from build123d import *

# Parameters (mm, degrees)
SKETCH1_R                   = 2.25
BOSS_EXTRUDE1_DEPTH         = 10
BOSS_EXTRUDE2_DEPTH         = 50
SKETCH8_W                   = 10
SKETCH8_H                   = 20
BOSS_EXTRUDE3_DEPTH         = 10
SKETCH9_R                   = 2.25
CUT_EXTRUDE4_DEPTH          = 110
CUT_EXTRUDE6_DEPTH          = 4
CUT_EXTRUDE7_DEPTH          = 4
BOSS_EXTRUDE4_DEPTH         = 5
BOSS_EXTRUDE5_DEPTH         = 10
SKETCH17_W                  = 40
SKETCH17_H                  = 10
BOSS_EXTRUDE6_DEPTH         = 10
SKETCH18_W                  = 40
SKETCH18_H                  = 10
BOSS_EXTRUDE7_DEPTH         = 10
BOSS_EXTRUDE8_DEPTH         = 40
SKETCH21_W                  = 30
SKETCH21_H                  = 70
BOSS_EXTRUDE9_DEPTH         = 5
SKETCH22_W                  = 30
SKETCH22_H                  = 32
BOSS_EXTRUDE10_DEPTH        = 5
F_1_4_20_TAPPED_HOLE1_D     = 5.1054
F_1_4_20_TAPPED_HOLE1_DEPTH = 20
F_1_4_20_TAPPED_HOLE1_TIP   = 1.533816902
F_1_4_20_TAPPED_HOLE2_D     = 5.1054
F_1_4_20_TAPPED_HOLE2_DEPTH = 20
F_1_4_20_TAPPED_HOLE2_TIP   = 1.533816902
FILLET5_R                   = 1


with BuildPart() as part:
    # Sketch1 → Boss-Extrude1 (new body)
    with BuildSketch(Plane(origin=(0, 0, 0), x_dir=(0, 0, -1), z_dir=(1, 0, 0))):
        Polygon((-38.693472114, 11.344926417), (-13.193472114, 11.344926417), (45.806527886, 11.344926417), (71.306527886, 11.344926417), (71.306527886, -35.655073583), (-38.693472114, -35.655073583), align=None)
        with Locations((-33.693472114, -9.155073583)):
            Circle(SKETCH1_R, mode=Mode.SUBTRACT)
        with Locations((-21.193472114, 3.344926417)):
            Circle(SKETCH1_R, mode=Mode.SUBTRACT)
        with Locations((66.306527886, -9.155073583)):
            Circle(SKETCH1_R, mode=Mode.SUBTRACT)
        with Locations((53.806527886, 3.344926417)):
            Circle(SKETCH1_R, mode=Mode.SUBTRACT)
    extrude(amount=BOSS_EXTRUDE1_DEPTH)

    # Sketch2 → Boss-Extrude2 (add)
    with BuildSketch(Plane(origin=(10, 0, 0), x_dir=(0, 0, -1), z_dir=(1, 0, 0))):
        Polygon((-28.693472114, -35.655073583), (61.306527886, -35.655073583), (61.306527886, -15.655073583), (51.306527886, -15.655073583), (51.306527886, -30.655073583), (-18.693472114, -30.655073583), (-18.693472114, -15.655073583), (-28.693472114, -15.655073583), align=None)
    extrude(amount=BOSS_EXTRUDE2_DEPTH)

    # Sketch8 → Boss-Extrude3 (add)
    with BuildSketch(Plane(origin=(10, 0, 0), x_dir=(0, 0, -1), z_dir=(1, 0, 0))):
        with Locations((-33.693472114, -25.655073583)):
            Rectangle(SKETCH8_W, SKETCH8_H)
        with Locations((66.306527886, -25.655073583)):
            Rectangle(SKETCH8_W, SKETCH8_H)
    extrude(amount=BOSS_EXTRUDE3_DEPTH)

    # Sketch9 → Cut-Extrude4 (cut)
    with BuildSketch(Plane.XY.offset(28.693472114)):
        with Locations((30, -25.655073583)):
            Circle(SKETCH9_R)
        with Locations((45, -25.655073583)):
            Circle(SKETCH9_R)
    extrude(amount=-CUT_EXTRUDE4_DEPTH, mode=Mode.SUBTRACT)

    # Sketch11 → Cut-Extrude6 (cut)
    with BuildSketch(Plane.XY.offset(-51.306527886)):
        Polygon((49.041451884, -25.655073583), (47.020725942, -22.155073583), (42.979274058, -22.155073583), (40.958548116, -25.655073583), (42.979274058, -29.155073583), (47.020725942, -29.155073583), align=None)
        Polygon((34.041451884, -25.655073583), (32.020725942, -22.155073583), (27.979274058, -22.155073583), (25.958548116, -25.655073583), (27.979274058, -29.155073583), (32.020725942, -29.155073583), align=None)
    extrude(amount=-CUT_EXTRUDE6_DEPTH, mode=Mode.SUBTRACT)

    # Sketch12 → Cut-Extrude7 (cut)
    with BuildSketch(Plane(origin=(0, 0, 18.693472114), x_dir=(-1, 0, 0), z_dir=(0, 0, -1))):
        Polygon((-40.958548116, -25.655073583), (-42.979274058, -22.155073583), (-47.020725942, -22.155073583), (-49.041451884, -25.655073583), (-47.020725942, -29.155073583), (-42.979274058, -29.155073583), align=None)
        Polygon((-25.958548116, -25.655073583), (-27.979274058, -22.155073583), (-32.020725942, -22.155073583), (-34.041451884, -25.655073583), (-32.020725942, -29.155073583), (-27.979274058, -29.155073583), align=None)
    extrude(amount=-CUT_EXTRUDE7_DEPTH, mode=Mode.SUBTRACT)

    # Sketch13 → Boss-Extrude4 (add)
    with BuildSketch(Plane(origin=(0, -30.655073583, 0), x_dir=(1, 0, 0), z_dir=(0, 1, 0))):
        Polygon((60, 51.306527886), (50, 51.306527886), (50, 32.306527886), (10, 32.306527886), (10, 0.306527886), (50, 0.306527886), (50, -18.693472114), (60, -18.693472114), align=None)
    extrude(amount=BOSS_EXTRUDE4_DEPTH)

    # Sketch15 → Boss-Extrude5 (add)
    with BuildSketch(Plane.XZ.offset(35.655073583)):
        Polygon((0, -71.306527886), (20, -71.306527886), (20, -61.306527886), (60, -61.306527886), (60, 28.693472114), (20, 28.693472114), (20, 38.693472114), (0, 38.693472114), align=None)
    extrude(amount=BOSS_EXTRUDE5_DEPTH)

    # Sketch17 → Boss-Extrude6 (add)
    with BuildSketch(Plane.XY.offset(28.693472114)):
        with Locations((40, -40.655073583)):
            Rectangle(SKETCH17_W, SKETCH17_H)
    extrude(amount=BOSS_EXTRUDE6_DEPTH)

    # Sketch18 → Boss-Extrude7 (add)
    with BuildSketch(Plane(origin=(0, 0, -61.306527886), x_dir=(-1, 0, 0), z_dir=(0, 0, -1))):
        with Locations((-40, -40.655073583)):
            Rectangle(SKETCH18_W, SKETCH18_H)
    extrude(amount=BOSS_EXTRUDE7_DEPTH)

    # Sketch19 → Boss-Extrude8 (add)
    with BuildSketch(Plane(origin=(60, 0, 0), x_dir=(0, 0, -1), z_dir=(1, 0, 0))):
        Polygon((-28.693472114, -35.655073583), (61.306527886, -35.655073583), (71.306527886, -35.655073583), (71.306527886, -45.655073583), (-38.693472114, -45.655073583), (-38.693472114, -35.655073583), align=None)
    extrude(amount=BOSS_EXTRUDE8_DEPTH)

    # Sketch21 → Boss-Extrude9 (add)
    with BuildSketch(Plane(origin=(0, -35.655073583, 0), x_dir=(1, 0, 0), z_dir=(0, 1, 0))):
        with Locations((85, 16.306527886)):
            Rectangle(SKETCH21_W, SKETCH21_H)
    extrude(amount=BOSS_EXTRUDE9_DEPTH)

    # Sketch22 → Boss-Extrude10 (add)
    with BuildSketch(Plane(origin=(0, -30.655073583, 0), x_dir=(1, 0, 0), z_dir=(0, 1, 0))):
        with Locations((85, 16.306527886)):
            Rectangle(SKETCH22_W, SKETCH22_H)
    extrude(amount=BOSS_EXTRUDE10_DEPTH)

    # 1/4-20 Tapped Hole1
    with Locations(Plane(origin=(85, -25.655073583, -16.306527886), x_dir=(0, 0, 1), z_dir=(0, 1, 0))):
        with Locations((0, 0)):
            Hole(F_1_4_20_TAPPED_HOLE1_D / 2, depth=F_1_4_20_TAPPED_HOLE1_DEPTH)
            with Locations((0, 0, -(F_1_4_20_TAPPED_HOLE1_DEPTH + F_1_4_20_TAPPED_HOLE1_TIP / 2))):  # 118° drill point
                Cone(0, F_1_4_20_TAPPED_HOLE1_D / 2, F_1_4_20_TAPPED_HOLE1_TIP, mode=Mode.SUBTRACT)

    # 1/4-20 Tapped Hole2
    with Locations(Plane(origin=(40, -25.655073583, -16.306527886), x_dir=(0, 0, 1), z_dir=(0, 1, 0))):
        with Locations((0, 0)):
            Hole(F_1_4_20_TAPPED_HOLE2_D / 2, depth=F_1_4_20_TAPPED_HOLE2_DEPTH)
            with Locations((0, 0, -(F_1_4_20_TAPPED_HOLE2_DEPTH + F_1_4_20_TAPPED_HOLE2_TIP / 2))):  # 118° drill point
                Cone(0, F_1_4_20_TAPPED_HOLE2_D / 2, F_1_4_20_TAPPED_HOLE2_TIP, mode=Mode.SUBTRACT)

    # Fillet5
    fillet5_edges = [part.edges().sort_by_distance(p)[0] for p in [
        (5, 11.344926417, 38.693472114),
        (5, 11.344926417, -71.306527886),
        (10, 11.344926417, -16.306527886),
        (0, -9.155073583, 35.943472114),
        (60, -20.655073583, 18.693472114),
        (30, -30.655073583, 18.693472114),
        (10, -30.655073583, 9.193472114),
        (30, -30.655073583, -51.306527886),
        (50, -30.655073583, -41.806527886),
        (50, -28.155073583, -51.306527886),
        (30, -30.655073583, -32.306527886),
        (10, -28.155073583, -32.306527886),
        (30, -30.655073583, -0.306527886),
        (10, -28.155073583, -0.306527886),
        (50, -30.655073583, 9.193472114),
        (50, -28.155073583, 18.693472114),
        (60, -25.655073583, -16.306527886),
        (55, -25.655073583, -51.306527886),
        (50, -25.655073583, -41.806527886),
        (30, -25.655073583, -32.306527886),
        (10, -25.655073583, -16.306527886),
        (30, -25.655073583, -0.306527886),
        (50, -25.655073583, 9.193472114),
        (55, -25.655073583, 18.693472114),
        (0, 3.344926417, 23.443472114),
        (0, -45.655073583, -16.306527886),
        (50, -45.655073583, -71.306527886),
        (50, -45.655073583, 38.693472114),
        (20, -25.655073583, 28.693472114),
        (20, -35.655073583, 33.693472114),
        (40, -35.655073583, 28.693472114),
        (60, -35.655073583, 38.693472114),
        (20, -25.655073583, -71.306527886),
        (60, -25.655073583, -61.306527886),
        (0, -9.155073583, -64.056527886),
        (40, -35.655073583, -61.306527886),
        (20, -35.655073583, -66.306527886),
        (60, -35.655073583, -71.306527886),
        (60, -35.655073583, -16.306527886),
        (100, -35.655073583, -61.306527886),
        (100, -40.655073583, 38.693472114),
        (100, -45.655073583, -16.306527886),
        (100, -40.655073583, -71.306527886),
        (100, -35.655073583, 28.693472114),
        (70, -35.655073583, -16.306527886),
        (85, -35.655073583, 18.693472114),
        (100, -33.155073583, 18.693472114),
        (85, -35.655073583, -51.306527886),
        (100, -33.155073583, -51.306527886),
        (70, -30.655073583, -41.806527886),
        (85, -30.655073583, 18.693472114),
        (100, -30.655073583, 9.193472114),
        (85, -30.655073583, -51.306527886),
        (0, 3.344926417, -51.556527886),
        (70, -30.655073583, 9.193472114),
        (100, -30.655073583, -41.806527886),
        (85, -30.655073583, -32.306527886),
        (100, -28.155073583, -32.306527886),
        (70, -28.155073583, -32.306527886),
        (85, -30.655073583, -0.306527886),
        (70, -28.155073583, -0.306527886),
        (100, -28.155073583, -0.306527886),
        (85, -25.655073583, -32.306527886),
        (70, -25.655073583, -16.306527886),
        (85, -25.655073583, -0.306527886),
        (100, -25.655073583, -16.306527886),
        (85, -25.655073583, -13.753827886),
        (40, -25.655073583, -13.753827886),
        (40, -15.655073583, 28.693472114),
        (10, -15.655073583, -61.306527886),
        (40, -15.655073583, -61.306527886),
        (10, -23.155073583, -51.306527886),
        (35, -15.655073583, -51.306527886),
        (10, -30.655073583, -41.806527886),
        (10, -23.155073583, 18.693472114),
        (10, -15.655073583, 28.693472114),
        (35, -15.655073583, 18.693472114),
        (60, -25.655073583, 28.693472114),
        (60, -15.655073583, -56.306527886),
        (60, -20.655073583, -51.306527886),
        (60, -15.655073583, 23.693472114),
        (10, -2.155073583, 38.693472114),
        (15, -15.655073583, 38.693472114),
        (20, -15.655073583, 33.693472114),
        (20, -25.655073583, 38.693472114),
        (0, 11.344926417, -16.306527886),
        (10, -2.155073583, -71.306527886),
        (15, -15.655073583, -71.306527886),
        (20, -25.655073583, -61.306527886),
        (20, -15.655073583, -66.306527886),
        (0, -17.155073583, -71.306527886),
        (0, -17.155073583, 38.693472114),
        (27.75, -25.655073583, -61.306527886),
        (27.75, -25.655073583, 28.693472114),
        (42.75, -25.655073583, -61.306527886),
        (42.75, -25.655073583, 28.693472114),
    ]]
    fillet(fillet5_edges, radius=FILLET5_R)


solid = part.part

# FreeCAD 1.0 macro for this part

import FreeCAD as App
import Part
import Sketcher
from FreeCAD import Vector
Q = App.Units.Quantity


def edges_at(feature, points):
    """Names of the edges that pass closest to the given points."""
    edges = feature.Shape.Edges
    near = lambda p: min(range(len(edges)), key=lambda i: edges[i].distToShape(Part.Vertex(*p))[0])
    return sorted({f"Edge{near(p) + 1}" for p in points})


def add_polygon(sketch, points):
    """Adds a closed chain of lines whose ends are joined by coincident constraints."""
    first, n = sketch.GeometryCount, len(points)
    for a, b in zip(points, points[1:] + points[:1]):
        sketch.addGeometry(Part.LineSegment(App.Vector(*a, 0), App.Vector(*b, 0)), False)
    for i in range(n):
        sketch.addConstraint(Sketcher.Constraint("Coincident", first + i, 2, first + (i + 1) % n, 1))

doc = App.newDocument("Part")
body = doc.addObject("PartDesign::Body", "Body")

# Sketch on YZ plane
sketch1 = doc.addObject("Sketcher::SketchObject", "Sketch")
body.addObject(sketch1)
sketch1.AttachmentSupport = (doc.YZ_Plane, [""])
sketch1.MapMode = "FlatFace"
add_polygon(sketch1, [(11.3, -71.3), (11.3, 38.7), (-35.7, 38.7), (-35.7, -71.3)])  # lines 0-3
sketch1.addGeometry(Part.Circle(Vector(-9.2, -66.3, 0), Vector(0, 0, 1), 2.2), False)  # 4
sketch1.addGeometry(Part.Circle(Vector(-9.2, 33.7, 0), Vector(0, 0, 1), 2.2), False)  # 5
sketch1.addGeometry(Part.Circle(Vector(3.3, -53.8, 0), Vector(0, 0, 1), 2.2), False)  # 6
sketch1.addGeometry(Part.Circle(Vector(3.3, 21.2, 0), Vector(0, 0, 1), 2.2), False)  # 7
sketch1.addConstraint(Sketcher.Constraint("Vertical", 0))
sketch1.addConstraint(Sketcher.Constraint("Horizontal", 1))
sketch1.addConstraint(Sketcher.Constraint("Vertical", 2))
sketch1.addConstraint(Sketcher.Constraint("Horizontal", 3))
sketch1.addConstraint(Sketcher.Constraint("Equal", 4, 5))
sketch1.addConstraint(Sketcher.Constraint("Equal", 5, 6))
sketch1.addConstraint(Sketcher.Constraint("Equal", 6, 7))
sketch1.addConstraint(Sketcher.Constraint("Vertical", 4, 3, 5, 3))
sketch1.addConstraint(Sketcher.Constraint("Vertical", 6, 3, 7, 3))
sketch1.addConstraint(Sketcher.Constraint("Diameter", 4, Q("4.5 mm")))
sketch1.addConstraint(Sketcher.Constraint("DistanceX", 1, 2, 1, 1, Q("47 mm")))
sketch1.addConstraint(Sketcher.Constraint("DistanceY", 0, 1, 0, 2, Q("110 mm")))
sketch1.addConstraint(Sketcher.Constraint("DistanceY", 4, 3, 5, 3, Q("100 mm")))
sketch1.addConstraint(Sketcher.Constraint("DistanceY", 6, 3, 7, 3, Q("75 mm")))
sketch1.addConstraint(Sketcher.Constraint("DistanceX", 7, 3, 0, 2, Q("8 mm")))
sketch1.addConstraint(Sketcher.Constraint("DistanceY", 5, 3, 0, 2, Q("5 mm")))
sketch1.addConstraint(Sketcher.Constraint("DistanceX", 4, 3, 6, 3, Q("12.5 mm")))
sketch1.addConstraint(Sketcher.Constraint("DistanceY", 4, 3, 6, 3, Q("12.5 mm")))
sketch1.addConstraint(Sketcher.Constraint("DistanceX", 4, 3, -1, 1, Q("9.155074 mm")))
sketch1.addConstraint(Sketcher.Constraint("DistanceY", 4, 3, -1, 1, Q("66.306528 mm")))
pad1 = doc.addObject("PartDesign::Pad", "Pad")
body.addObject(pad1)
pad1.Profile = sketch1
pad1.Length = 10

# Sketch on YZ plane
sketch2 = doc.addObject("Sketcher::SketchObject", "Sketch001")
body.addObject(sketch2)
sketch2.AttachmentSupport = (doc.YZ_Plane, [""])
sketch2.MapMode = "FlatFace"
sketch2.AttachmentOffset = App.Placement(Vector(0, 0, 10), App.Rotation())
add_polygon(sketch2, [(-36, 29), (-36, -61), (-16, -61), (-16, -51), (-31, -51), (-31, 19), (-16, 19), (-16, 29)])  # lines 0-7
sketch2.addConstraint(Sketcher.Constraint("Vertical", 0))
sketch2.addConstraint(Sketcher.Constraint("Horizontal", 1))
sketch2.addConstraint(Sketcher.Constraint("Vertical", 2))
sketch2.addConstraint(Sketcher.Constraint("Horizontal", 3))
sketch2.addConstraint(Sketcher.Constraint("Vertical", 4))
sketch2.addConstraint(Sketcher.Constraint("Horizontal", 5))
sketch2.addConstraint(Sketcher.Constraint("Vertical", 6))
sketch2.addConstraint(Sketcher.Constraint("Horizontal", 7))
sketch2.addConstraint(Sketcher.Constraint("Vertical", 2, 2, 5, 2))
sketch2.addConstraint(Sketcher.Constraint("Equal", 2, 6))
sketch2.addConstraint(Sketcher.Constraint("DistanceX", 1, 1, 1, 2, Q("20 mm")))
sketch2.addConstraint(Sketcher.Constraint("DistanceX", 3, 2, 3, 1, Q("15 mm")))
sketch2.addConstraint(Sketcher.Constraint("DistanceY", 0, 2, 0, 1, Q("90 mm")))
sketch2.addConstraint(Sketcher.Constraint("DistanceY", 2, 1, 2, 2, Q("10 mm")))
sketch2.addConstraint(Sketcher.Constraint("DistanceX", 0, 2, -1, 1, Q("35.655074 mm")))
sketch2.addConstraint(Sketcher.Constraint("DistanceY", 0, 2, -1, 1, Q("61.306528 mm")))
pad2 = doc.addObject("PartDesign::Pad", "Pad001")
body.addObject(pad2)
pad2.Profile = sketch2
pad2.Length = 50

# Sketch on YZ plane
sketch3 = doc.addObject("Sketcher::SketchObject", "Sketch002")
body.addObject(sketch3)
sketch3.AttachmentSupport = (doc.YZ_Plane, [""])
sketch3.MapMode = "FlatFace"
sketch3.AttachmentOffset = App.Placement(Vector(0, 0, 10), App.Rotation())
add_polygon(sketch3, [(-16, 39), (-36, 39), (-36, 29), (-16, 29)])  # lines 0-3
add_polygon(sketch3, [(-16, -61), (-36, -61), (-36, -71), (-16, -71)])  # lines 4-7
sketch3.addConstraint(Sketcher.Constraint("Horizontal", 0))
sketch3.addConstraint(Sketcher.Constraint("Vertical", 1))
sketch3.addConstraint(Sketcher.Constraint("Horizontal", 2))
sketch3.addConstraint(Sketcher.Constraint("Vertical", 3))
sketch3.addConstraint(Sketcher.Constraint("Horizontal", 4))
sketch3.addConstraint(Sketcher.Constraint("Vertical", 5))
sketch3.addConstraint(Sketcher.Constraint("Horizontal", 6))
sketch3.addConstraint(Sketcher.Constraint("Vertical", 7))
sketch3.addConstraint(Sketcher.Constraint("Vertical", 1, 2, 4, 2))
sketch3.addConstraint(Sketcher.Constraint("Vertical", 3, 2, 6, 2))
sketch3.addConstraint(Sketcher.Constraint("Equal", 3, 5))
sketch3.addConstraint(Sketcher.Constraint("DistanceX", 0, 2, 0, 1, Q("20 mm")))
sketch3.addConstraint(Sketcher.Constraint("DistanceY", 1, 2, 1, 1, Q("10 mm")))
sketch3.addConstraint(Sketcher.Constraint("DistanceY", 4, 2, 1, 2, Q("90 mm")))
sketch3.addConstraint(Sketcher.Constraint("DistanceX", 0, 2, -1, 1, Q("35.655074 mm")))
sketch3.addConstraint(Sketcher.Constraint("DistanceY", -1, 1, 0, 2, Q("38.693472 mm")))
pad3 = doc.addObject("PartDesign::Pad", "Pad002")
body.addObject(pad3)
pad3.Profile = sketch3
pad3.Length = 10

# Sketch on XY plane
sketch4 = doc.addObject("Sketcher::SketchObject", "Sketch003")
body.addObject(sketch4)
sketch4.AttachmentSupport = (doc.XY_Plane, [""])
sketch4.MapMode = "FlatFace"
sketch4.AttachmentOffset = App.Placement(Vector(0, 0, 28.693472), App.Rotation())
sketch4.addGeometry(Part.Circle(Vector(30, -25.7, 0), Vector(0, 0, 1), 2.2), False)
sketch4.addGeometry(Part.Circle(Vector(45, -25.7, 0), Vector(0, 0, 1), 2.2), False)
sketch4.addConstraint(Sketcher.Constraint("Equal", 0, 1))
sketch4.addConstraint(Sketcher.Constraint("Horizontal", 0, 3, 1, 3))
sketch4.addConstraint(Sketcher.Constraint("Diameter", 0, Q("4.5 mm")))
sketch4.addConstraint(Sketcher.Constraint("DistanceX", -1, 1, 0, 3, Q("30 mm")))
sketch4.addConstraint(Sketcher.Constraint("DistanceX", -1, 1, 1, 3, Q("45 mm")))
sketch4.addConstraint(Sketcher.Constraint("DistanceY", 0, 3, -1, 1, Q("25.655074 mm")))
pocket1 = doc.addObject("PartDesign::Pocket", "Pocket")
body.addObject(pocket1)
pocket1.Profile = sketch4
pocket1.Length = 110

# Sketch on XY plane
sketch5 = doc.addObject("Sketcher::SketchObject", "Sketch004")
body.addObject(sketch5)
sketch5.AttachmentSupport = (doc.XY_Plane, [""])
sketch5.MapMode = "FlatFace"
sketch5.AttachmentOffset = App.Placement(Vector(0, 0, -51.306528), App.Rotation())
add_polygon(sketch5, [(49, -25.7), (47, -22.2), (43, -22.2), (41, -25.7), (43, -29.2), (47, -29.2)])  # lines 0-5
add_polygon(sketch5, [(34, -25.7), (32, -22.2), (28, -22.2), (26, -25.7), (28, -29.2), (32, -29.2)])  # lines 6-11
sketch5.addConstraint(Sketcher.Constraint("Horizontal", 1))
sketch5.addConstraint(Sketcher.Constraint("Horizontal", 4))
sketch5.addConstraint(Sketcher.Constraint("Horizontal", 7))
sketch5.addConstraint(Sketcher.Constraint("Horizontal", 10))
sketch5.addConstraint(Sketcher.Constraint("Parallel", 0, 3))
sketch5.addConstraint(Sketcher.Constraint("Parallel", 2, 5))
sketch5.addConstraint(Sketcher.Constraint("Parallel", 3, 6))
sketch5.addConstraint(Sketcher.Constraint("Parallel", 5, 8))
sketch5.addConstraint(Sketcher.Constraint("Parallel", 6, 9))
sketch5.addConstraint(Sketcher.Constraint("Parallel", 8, 11))
sketch5.addConstraint(Sketcher.Constraint("Horizontal", 2, 2, 5, 2))
sketch5.addConstraint(Sketcher.Constraint("Horizontal", 1, 2, 6, 2))
sketch5.addConstraint(Sketcher.Constraint("Horizontal", 5, 2, 8, 2))
sketch5.addConstraint(Sketcher.Constraint("Horizontal", 4, 2, 9, 2))
sketch5.addConstraint(Sketcher.Constraint("Horizontal", 8, 2, 11, 2))
sketch5.addConstraint(Sketcher.Constraint("Vertical", 1, 2, 3, 2))
sketch5.addConstraint(Sketcher.Constraint("Vertical", 0, 2, 4, 2))
sketch5.addConstraint(Sketcher.Constraint("Equal", 4, 7))
sketch5.addConstraint(Sketcher.Constraint("Angle", 0, Q("120 deg")))
sketch5.addConstraint(Sketcher.Constraint("DistanceY", 3, 2, 1, 2, Q("7 mm")))
sketch5.addConstraint(Sketcher.Constraint("DistanceX", 6, 2, 0, 2, Q("15 mm")))
sketch5.addConstraint(Sketcher.Constraint("DistanceX", 1, 2, 1, 1, Q("4.041452 mm")))
sketch5.addConstraint(Sketcher.Constraint("DistanceX", -1, 1, 2, 2, Q("40.958548 mm")))
sketch5.addConstraint(Sketcher.Constraint("DistanceY", 0, 2, -1, 1, Q("22.155074 mm")))
pocket2 = doc.addObject("PartDesign::Pocket", "Pocket001")
body.addObject(pocket2)
pocket2.Profile = sketch5
pocket2.Length = 4

# Sketch on XY plane
sketch6 = doc.addObject("Sketcher::SketchObject", "Sketch005")
body.addObject(sketch6)
sketch6.AttachmentSupport = (doc.XY_Plane, [""])
sketch6.MapMode = "FlatFace"
sketch6.AttachmentOffset = App.Placement(Vector(0, 0, 18.693472), App.Rotation())
add_polygon(sketch6, [(41, -25.7), (43, -22.2), (47, -22.2), (49, -25.7), (47, -29.2), (43, -29.2)])  # lines 0-5
add_polygon(sketch6, [(26, -25.7), (28, -22.2), (32, -22.2), (34, -25.7), (32, -29.2), (28, -29.2)])  # lines 6-11
sketch6.addConstraint(Sketcher.Constraint("Horizontal", 1))
sketch6.addConstraint(Sketcher.Constraint("Horizontal", 4))
sketch6.addConstraint(Sketcher.Constraint("Horizontal", 7))
sketch6.addConstraint(Sketcher.Constraint("Horizontal", 10))
sketch6.addConstraint(Sketcher.Constraint("Parallel", 0, 3))
sketch6.addConstraint(Sketcher.Constraint("Parallel", 2, 5))
sketch6.addConstraint(Sketcher.Constraint("Parallel", 3, 6))
sketch6.addConstraint(Sketcher.Constraint("Parallel", 5, 8))
sketch6.addConstraint(Sketcher.Constraint("Parallel", 6, 9))
sketch6.addConstraint(Sketcher.Constraint("Parallel", 8, 11))
sketch6.addConstraint(Sketcher.Constraint("Horizontal", 2, 2, 5, 2))
sketch6.addConstraint(Sketcher.Constraint("Horizontal", 1, 2, 6, 2))
sketch6.addConstraint(Sketcher.Constraint("Horizontal", 5, 2, 8, 2))
sketch6.addConstraint(Sketcher.Constraint("Horizontal", 4, 2, 9, 2))
sketch6.addConstraint(Sketcher.Constraint("Horizontal", 8, 2, 11, 2))
sketch6.addConstraint(Sketcher.Constraint("Vertical", 1, 2, 3, 2))
sketch6.addConstraint(Sketcher.Constraint("Vertical", 0, 2, 4, 2))
sketch6.addConstraint(Sketcher.Constraint("Equal", 4, 7))
sketch6.addConstraint(Sketcher.Constraint("Angle", 0, Q("60 deg")))
sketch6.addConstraint(Sketcher.Constraint("DistanceY", 3, 2, 1, 2, Q("7 mm")))
sketch6.addConstraint(Sketcher.Constraint("DistanceX", 6, 2, 0, 2, Q("15 mm")))
sketch6.addConstraint(Sketcher.Constraint("DistanceX", 1, 1, 1, 2, Q("4.041452 mm")))
sketch6.addConstraint(Sketcher.Constraint("DistanceX", -1, 1, 2, 2, Q("49.041452 mm")))
sketch6.addConstraint(Sketcher.Constraint("DistanceY", 0, 2, -1, 1, Q("22.155074 mm")))
pocket3 = doc.addObject("PartDesign::Pocket", "Pocket002")
body.addObject(pocket3)
pocket3.Profile = sketch6
pocket3.Length = 4
pocket3.Reversed = True

# Sketch on XZ plane
sketch7 = doc.addObject("Sketcher::SketchObject", "Sketch006")
body.addObject(sketch7)
sketch7.AttachmentSupport = (doc.XZ_Plane, [""])
sketch7.MapMode = "FlatFace"
sketch7.AttachmentOffset = App.Placement(Vector(0, 0, 30.655074), App.Rotation())
add_polygon(sketch7, [(60, -51), (50, -51), (50, -32), (10, -32), (10, 0), (50, 0), (50, 19), (60, 19)])  # lines 0-7
sketch7.addConstraint(Sketcher.Constraint("Horizontal", 0))
sketch7.addConstraint(Sketcher.Constraint("Vertical", 1))
sketch7.addConstraint(Sketcher.Constraint("Horizontal", 2))
sketch7.addConstraint(Sketcher.Constraint("Vertical", 3))
sketch7.addConstraint(Sketcher.Constraint("Horizontal", 4))
sketch7.addConstraint(Sketcher.Constraint("Vertical", 5))
sketch7.addConstraint(Sketcher.Constraint("Horizontal", 6))
sketch7.addConstraint(Sketcher.Constraint("Vertical", 7))
sketch7.addConstraint(Sketcher.Constraint("Vertical", 1, 2, 4, 2))
sketch7.addConstraint(Sketcher.Constraint("Equal", 1, 5))
sketch7.addConstraint(Sketcher.Constraint("DistanceX", 0, 2, 0, 1, Q("10 mm")))
sketch7.addConstraint(Sketcher.Constraint("DistanceX", 2, 2, 2, 1, Q("40 mm")))
sketch7.addConstraint(Sketcher.Constraint("DistanceY", 1, 1, 1, 2, Q("19 mm")))
sketch7.addConstraint(Sketcher.Constraint("DistanceY", 3, 1, 3, 2, Q("32 mm")))
sketch7.addConstraint(Sketcher.Constraint("DistanceX", -1, 1, 0, 2, Q("50 mm")))
sketch7.addConstraint(Sketcher.Constraint("DistanceY", 0, 2, -1, 1, Q("51.306528 mm")))
pad4 = doc.addObject("PartDesign::Pad", "Pad003")
body.addObject(pad4)
pad4.Profile = sketch7
pad4.Length = 5
pad4.Reversed = True

# Sketch on XZ plane
sketch8 = doc.addObject("Sketcher::SketchObject", "Sketch007")
body.addObject(sketch8)
sketch8.AttachmentSupport = (doc.XZ_Plane, [""])
sketch8.MapMode = "FlatFace"
sketch8.AttachmentOffset = App.Placement(Vector(0, 0, 35.655074), App.Rotation())
add_polygon(sketch8, [(0, -71), (20, -71), (20, -61), (60, -61), (60, 29), (20, 29), (20, 39), (0, 39)])  # lines 0-7
sketch8.addConstraint(Sketcher.Constraint("Horizontal", 0))
sketch8.addConstraint(Sketcher.Constraint("Vertical", 1))
sketch8.addConstraint(Sketcher.Constraint("Horizontal", 2))
sketch8.addConstraint(Sketcher.Constraint("Vertical", 3))
sketch8.addConstraint(Sketcher.Constraint("Horizontal", 4))
sketch8.addConstraint(Sketcher.Constraint("Vertical", 5))
sketch8.addConstraint(Sketcher.Constraint("Horizontal", 6))
sketch8.addConstraint(Sketcher.Constraint("Vertical", 7))
sketch8.addConstraint(Sketcher.Constraint("PointOnObject", 6, 2, -2))
sketch8.addConstraint(Sketcher.Constraint("Vertical", 1, 2, 4, 2))
sketch8.addConstraint(Sketcher.Constraint("Equal", 1, 5))
sketch8.addConstraint(Sketcher.Constraint("DistanceX", 0, 1, 0, 2, Q("20 mm")))
sketch8.addConstraint(Sketcher.Constraint("DistanceX", 2, 1, 2, 2, Q("40 mm")))
sketch8.addConstraint(Sketcher.Constraint("DistanceY", 1, 1, 1, 2, Q("10 mm")))
sketch8.addConstraint(Sketcher.Constraint("DistanceY", 3, 1, 3, 2, Q("90 mm")))
sketch8.addConstraint(Sketcher.Constraint("DistanceY", 0, 2, -1, 1, Q("71.306528 mm")))
pad5 = doc.addObject("PartDesign::Pad", "Pad004")
body.addObject(pad5)
pad5.Profile = sketch8
pad5.Length = 10

# Sketch on XY plane
sketch9 = doc.addObject("Sketcher::SketchObject", "Sketch008")
body.addObject(sketch9)
sketch9.AttachmentSupport = (doc.XY_Plane, [""])
sketch9.MapMode = "FlatFace"
sketch9.AttachmentOffset = App.Placement(Vector(0, 0, 28.693472), App.Rotation())
add_polygon(sketch9, [(20, -36), (20, -46), (60, -46), (60, -36)])  # lines 0-3
sketch9.addConstraint(Sketcher.Constraint("Vertical", 0))
sketch9.addConstraint(Sketcher.Constraint("Horizontal", 1))
sketch9.addConstraint(Sketcher.Constraint("Vertical", 2))
sketch9.addConstraint(Sketcher.Constraint("Horizontal", 3))
sketch9.addConstraint(Sketcher.Constraint("DistanceX", 1, 1, 1, 2, Q("40 mm")))
sketch9.addConstraint(Sketcher.Constraint("DistanceY", 0, 2, 0, 1, Q("10 mm")))
sketch9.addConstraint(Sketcher.Constraint("DistanceX", -1, 1, 0, 2, Q("20 mm")))
sketch9.addConstraint(Sketcher.Constraint("DistanceY", 0, 2, -1, 1, Q("45.655074 mm")))
pad6 = doc.addObject("PartDesign::Pad", "Pad005")
body.addObject(pad6)
pad6.Profile = sketch9
pad6.Length = 10

# Sketch on XY plane
sketch10 = doc.addObject("Sketcher::SketchObject", "Sketch009")
body.addObject(sketch10)
sketch10.AttachmentSupport = (doc.XY_Plane, [""])
sketch10.MapMode = "FlatFace"
sketch10.AttachmentOffset = App.Placement(Vector(0, 0, -61.306528), App.Rotation())
add_polygon(sketch10, [(60, -36), (60, -46), (20, -46), (20, -36)])  # lines 0-3
sketch10.addConstraint(Sketcher.Constraint("Vertical", 0))
sketch10.addConstraint(Sketcher.Constraint("Horizontal", 1))
sketch10.addConstraint(Sketcher.Constraint("Vertical", 2))
sketch10.addConstraint(Sketcher.Constraint("Horizontal", 3))
sketch10.addConstraint(Sketcher.Constraint("DistanceX", 1, 2, 1, 1, Q("40 mm")))
sketch10.addConstraint(Sketcher.Constraint("DistanceY", 0, 2, 0, 1, Q("10 mm")))
sketch10.addConstraint(Sketcher.Constraint("DistanceX", -1, 1, 0, 2, Q("60 mm")))
sketch10.addConstraint(Sketcher.Constraint("DistanceY", 0, 2, -1, 1, Q("45.655074 mm")))
pad7 = doc.addObject("PartDesign::Pad", "Pad006")
body.addObject(pad7)
pad7.Profile = sketch10
pad7.Length = 10
pad7.Reversed = True

# Sketch on YZ plane
sketch11 = doc.addObject("Sketcher::SketchObject", "Sketch010")
body.addObject(sketch11)
sketch11.AttachmentSupport = (doc.YZ_Plane, [""])
sketch11.MapMode = "FlatFace"
sketch11.AttachmentOffset = App.Placement(Vector(0, 0, 60), App.Rotation())
add_polygon(sketch11, [(-36, -71), (-36, 39), (-46, 39), (-46, -71)])  # lines 0-3
sketch11.addConstraint(Sketcher.Constraint("Vertical", 0))
sketch11.addConstraint(Sketcher.Constraint("Horizontal", 1))
sketch11.addConstraint(Sketcher.Constraint("Vertical", 2))
sketch11.addConstraint(Sketcher.Constraint("Horizontal", 3))
sketch11.addConstraint(Sketcher.Constraint("DistanceX", 1, 2, 1, 1, Q("10 mm")))
sketch11.addConstraint(Sketcher.Constraint("DistanceY", 0, 1, 0, 2, Q("110 mm")))
sketch11.addConstraint(Sketcher.Constraint("DistanceX", 0, 2, -1, 1, Q("35.655074 mm")))
sketch11.addConstraint(Sketcher.Constraint("DistanceY", -1, 1, 0, 2, Q("38.693472 mm")))
pad8 = doc.addObject("PartDesign::Pad", "Pad007")
body.addObject(pad8)
pad8.Profile = sketch11
pad8.Length = 40

# Sketch on XZ plane
sketch12 = doc.addObject("Sketcher::SketchObject", "Sketch011")
body.addObject(sketch12)
sketch12.AttachmentSupport = (doc.XZ_Plane, [""])
sketch12.MapMode = "FlatFace"
sketch12.AttachmentOffset = App.Placement(Vector(0, 0, 35.655074), App.Rotation())
add_polygon(sketch12, [(70, -51), (70, 19), (100, 19), (100, -51)])  # lines 0-3
sketch12.addConstraint(Sketcher.Constraint("Vertical", 0))
sketch12.addConstraint(Sketcher.Constraint("Horizontal", 1))
sketch12.addConstraint(Sketcher.Constraint("Vertical", 2))
sketch12.addConstraint(Sketcher.Constraint("Horizontal", 3))
sketch12.addConstraint(Sketcher.Constraint("DistanceX", 1, 1, 1, 2, Q("30 mm")))
sketch12.addConstraint(Sketcher.Constraint("DistanceY", 0, 1, 0, 2, Q("70 mm")))
sketch12.addConstraint(Sketcher.Constraint("DistanceX", -1, 1, 0, 2, Q("70 mm")))
sketch12.addConstraint(Sketcher.Constraint("DistanceY", -1, 1, 0, 2, Q("18.693472 mm")))
pad9 = doc.addObject("PartDesign::Pad", "Pad008")
body.addObject(pad9)
pad9.Profile = sketch12
pad9.Length = 5
pad9.Reversed = True

# Sketch on XZ plane
sketch13 = doc.addObject("Sketcher::SketchObject", "Sketch012")
body.addObject(sketch13)
sketch13.AttachmentSupport = (doc.XZ_Plane, [""])
sketch13.MapMode = "FlatFace"
sketch13.AttachmentOffset = App.Placement(Vector(0, 0, 30.655074), App.Rotation())
add_polygon(sketch13, [(70, -32), (70, 0), (100, 0), (100, -32)])  # lines 0-3
sketch13.addConstraint(Sketcher.Constraint("Vertical", 0))
sketch13.addConstraint(Sketcher.Constraint("Horizontal", 1))
sketch13.addConstraint(Sketcher.Constraint("Vertical", 2))
sketch13.addConstraint(Sketcher.Constraint("Horizontal", 3))
sketch13.addConstraint(Sketcher.Constraint("DistanceX", 1, 1, 1, 2, Q("30 mm")))
sketch13.addConstraint(Sketcher.Constraint("DistanceY", 0, 1, 0, 2, Q("32 mm")))
sketch13.addConstraint(Sketcher.Constraint("DistanceX", -1, 1, 0, 2, Q("70 mm")))
sketch13.addConstraint(Sketcher.Constraint("DistanceY", 0, 2, -1, 1, Q("0.306528 mm")))
pad10 = doc.addObject("PartDesign::Pad", "Pad009")
body.addObject(pad10)
pad10.Profile = sketch13
pad10.Length = 5
pad10.Reversed = True

# Sketch on XZ plane
sketch14 = doc.addObject("Sketcher::SketchObject", "Sketch013")
body.addObject(sketch14)
sketch14.AttachmentSupport = (doc.XZ_Plane, [""])
sketch14.MapMode = "FlatFace"
sketch14.AttachmentOffset = App.Placement(Vector(0, 0, 25.655074), App.Rotation())
sketch14.addGeometry(Part.Circle(Vector(85, -16.3, 0), Vector(0, 0, 1), 2.6), False)
sketch14.addConstraint(Sketcher.Constraint("DistanceX", -1, 1, 0, 3, Q("85 mm")))
sketch14.addConstraint(Sketcher.Constraint("Diameter", 0, Q("5.1054 mm")))
sketch14.addConstraint(Sketcher.Constraint("DistanceY", 0, 3, -1, 1, Q("16.306528 mm")))
doc.recompute()
hole = doc.addObject("PartDesign::Hole", "Hole")
body.addObject(hole)
hole.Profile = sketch14
hole.ThreadType = "None"
hole.Diameter = 5.1054
hole.DepthType = "Dimension"
hole.Depth = 20
hole.DrillPoint = "Angled"
hole.DrillPointAngle = 118
hole.Reversed = True

# Sketch on XZ plane
sketch15 = doc.addObject("Sketcher::SketchObject", "Sketch014")
body.addObject(sketch15)
sketch15.AttachmentSupport = (doc.XZ_Plane, [""])
sketch15.MapMode = "FlatFace"
sketch15.AttachmentOffset = App.Placement(Vector(0, 0, 25.655074), App.Rotation())
sketch15.addGeometry(Part.Circle(Vector(40, -16.3, 0), Vector(0, 0, 1), 2.6), False)
sketch15.addConstraint(Sketcher.Constraint("DistanceX", -1, 1, 0, 3, Q("40 mm")))
sketch15.addConstraint(Sketcher.Constraint("Diameter", 0, Q("5.1054 mm")))
sketch15.addConstraint(Sketcher.Constraint("DistanceY", 0, 3, -1, 1, Q("16.306528 mm")))
doc.recompute()
hole2 = doc.addObject("PartDesign::Hole", "Hole001")
body.addObject(hole2)
hole2.Profile = sketch15
hole2.ThreadType = "None"
hole2.Diameter = 5.1054
hole2.DepthType = "Dimension"
hole2.Depth = 20
hole2.DrillPoint = "Angled"
hole2.DrillPointAngle = 118
hole2.Reversed = True
doc.recompute()

fillet = doc.addObject("PartDesign::Fillet", "Fillet")
body.addObject(fillet)
fillet.Base = (hole2, edges_at(hole2, [
    (5, 11.345, 38.693),
    (5, 11.345, -71.307),
    (10, 11.345, -16.307),
    (0, -9.155, 35.943),
    (60, -20.655, 18.693),
    (30, -30.655, 18.693),
    (10, -30.655, 9.193),
    (30, -30.655, -51.307),
    (50, -30.655, -41.807),
    (50, -28.155, -51.307),
    (30, -30.655, -32.307),
    (10, -28.155, -32.307),
    (30, -30.655, -0.307),
    (10, -28.155, -0.307),
    (50, -30.655, 9.193),
    (50, -28.155, 18.693),
    (60, -25.655, -16.307),
    (55, -25.655, -51.307),
    (50, -25.655, -41.807),
    (30, -25.655, -32.307),
    (10, -25.655, -16.307),
    (30, -25.655, -0.307),
    (50, -25.655, 9.193),
    (55, -25.655, 18.693),
    (0, 3.345, 23.443),
    (0, -45.655, -16.307),
    (50, -45.655, -71.307),
    (50, -45.655, 38.693),
    (20, -25.655, 28.693),
    (20, -35.655, 33.693),
    (40, -35.655, 28.693),
    (60, -35.655, 38.693),
    (20, -25.655, -71.307),
    (60, -25.655, -61.307),
    (0, -9.155, -64.057),
    (40, -35.655, -61.307),
    (20, -35.655, -66.307),
    (60, -35.655, -71.307),
    (60, -35.655, -16.307),
    (100, -35.655, -61.307),
    (100, -40.655, 38.693),
    (100, -45.655, -16.307),
    (100, -40.655, -71.307),
    (100, -35.655, 28.693),
    (70, -35.655, -16.307),
    (85, -35.655, 18.693),
    (100, -33.155, 18.693),
    (85, -35.655, -51.307),
    (100, -33.155, -51.307),
    (70, -30.655, -41.807),
    (85, -30.655, 18.693),
    (100, -30.655, 9.193),
    (85, -30.655, -51.307),
    (0, 3.345, -51.557),
    (70, -30.655, 9.193),
    (100, -30.655, -41.807),
    (85, -30.655, -32.307),
    (100, -28.155, -32.307),
    (70, -28.155, -32.307),
    (85, -30.655, -0.307),
    (70, -28.155, -0.307),
    (100, -28.155, -0.307),
    (85, -25.655, -32.307),
    (70, -25.655, -16.307),
    (85, -25.655, -0.307),
    (100, -25.655, -16.307),
    (85, -25.655, -13.754),
    (40, -25.655, -13.754),
    (40, -15.655, 28.693),
    (10, -15.655, -61.307),
    (40, -15.655, -61.307),
    (10, -23.155, -51.307),
    (35, -15.655, -51.307),
    (10, -30.655, -41.807),
    (10, -23.155, 18.693),
    (10, -15.655, 28.693),
    (35, -15.655, 18.693),
    (60, -25.655, 28.693),
    (60, -15.655, -56.307),
    (60, -20.655, -51.307),
    (60, -15.655, 23.693),
    (10, -2.155, 38.693),
    (15, -15.655, 38.693),
    (20, -15.655, 33.693),
    (20, -25.655, 38.693),
    (0, 11.345, -16.307),
    (10, -2.155, -71.307),
    (15, -15.655, -71.307),
    (20, -25.655, -61.307),
    (20, -15.655, -66.307),
    (0, -17.155, -71.307),
    (0, -17.155, 38.693),
    (27.75, -25.655, -61.307),
    (27.75, -25.655, 28.693),
    (42.75, -25.655, -61.307),
    (42.75, -25.655, 28.693),
]))
fillet.Radius = 1

doc.recompute()
